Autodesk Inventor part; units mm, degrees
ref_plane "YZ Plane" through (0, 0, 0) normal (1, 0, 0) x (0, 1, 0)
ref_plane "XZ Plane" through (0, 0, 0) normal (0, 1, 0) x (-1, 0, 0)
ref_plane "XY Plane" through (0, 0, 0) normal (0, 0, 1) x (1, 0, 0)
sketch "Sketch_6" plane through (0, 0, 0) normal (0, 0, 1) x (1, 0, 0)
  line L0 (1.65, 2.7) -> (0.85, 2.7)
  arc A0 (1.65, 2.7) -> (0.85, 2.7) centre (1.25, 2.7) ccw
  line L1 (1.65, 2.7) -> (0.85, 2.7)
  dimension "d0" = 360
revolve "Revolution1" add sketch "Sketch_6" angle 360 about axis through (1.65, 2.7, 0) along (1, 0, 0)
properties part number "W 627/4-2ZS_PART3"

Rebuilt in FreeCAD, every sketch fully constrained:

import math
import FreeCAD as App
import Part
import Sketcher
Q = App.Units.Quantity

doc = App.newDocument("Part")
body = doc.addObject("PartDesign::Body", "Body")

# Sketch on XY plane
sketch1 = body.newObject("Sketcher::SketchObject", "Sketch")
sketch1.AttachmentSupport = (doc.getObject("XY_Plane"), [""])
sketch1.MapMode = "FlatFace"
sketch1.addGeometry([
    Part.LineSegment(App.Vector(0.85, 2.7, 0), App.Vector(1.65, 2.7, 0)),
    Part.ArcOfCircle(Part.Circle(App.Vector(1.25, 2.7, 0), App.Vector(0, 0, 1), 0.4), math.radians(0), math.radians(180)),
], False)
sketch1.addGeometry(Part.LineSegment(App.Vector(0.85, 2.7, 0), App.Vector(1.65, 2.7, 0)), True)  # axis
sketch1.addConstraint([
    Sketcher.Constraint("Coincident", 0, 1, 1, 2),
    Sketcher.Constraint("Coincident", 1, 1, 0, 2),
    Sketcher.Constraint("Horizontal", 0),
    Sketcher.Constraint("Horizontal", 2),
    Sketcher.Constraint("Coincident", 2, 1, 0, 1),
    Sketcher.Constraint("Horizontal", 1, 3, 0, 1),
    Sketcher.Constraint("Equal", 0, 2),
    Sketcher.Constraint("Radius", 1, Q("0.4 mm")),
    Sketcher.Constraint("DistanceY", -1, 1, 1, 3, Q("2.7 mm")),
    Sketcher.Constraint("DistanceX", -1, 1, 1, 3, Q("1.25 mm")),
])
revolution = body.newObject("PartDesign::Revolution", "Revolution")
revolution.Profile = sketch1
revolution.ReferenceAxis = (sketch1, ["Axis0"])
revolution.Angle = 360

doc.recompute()
